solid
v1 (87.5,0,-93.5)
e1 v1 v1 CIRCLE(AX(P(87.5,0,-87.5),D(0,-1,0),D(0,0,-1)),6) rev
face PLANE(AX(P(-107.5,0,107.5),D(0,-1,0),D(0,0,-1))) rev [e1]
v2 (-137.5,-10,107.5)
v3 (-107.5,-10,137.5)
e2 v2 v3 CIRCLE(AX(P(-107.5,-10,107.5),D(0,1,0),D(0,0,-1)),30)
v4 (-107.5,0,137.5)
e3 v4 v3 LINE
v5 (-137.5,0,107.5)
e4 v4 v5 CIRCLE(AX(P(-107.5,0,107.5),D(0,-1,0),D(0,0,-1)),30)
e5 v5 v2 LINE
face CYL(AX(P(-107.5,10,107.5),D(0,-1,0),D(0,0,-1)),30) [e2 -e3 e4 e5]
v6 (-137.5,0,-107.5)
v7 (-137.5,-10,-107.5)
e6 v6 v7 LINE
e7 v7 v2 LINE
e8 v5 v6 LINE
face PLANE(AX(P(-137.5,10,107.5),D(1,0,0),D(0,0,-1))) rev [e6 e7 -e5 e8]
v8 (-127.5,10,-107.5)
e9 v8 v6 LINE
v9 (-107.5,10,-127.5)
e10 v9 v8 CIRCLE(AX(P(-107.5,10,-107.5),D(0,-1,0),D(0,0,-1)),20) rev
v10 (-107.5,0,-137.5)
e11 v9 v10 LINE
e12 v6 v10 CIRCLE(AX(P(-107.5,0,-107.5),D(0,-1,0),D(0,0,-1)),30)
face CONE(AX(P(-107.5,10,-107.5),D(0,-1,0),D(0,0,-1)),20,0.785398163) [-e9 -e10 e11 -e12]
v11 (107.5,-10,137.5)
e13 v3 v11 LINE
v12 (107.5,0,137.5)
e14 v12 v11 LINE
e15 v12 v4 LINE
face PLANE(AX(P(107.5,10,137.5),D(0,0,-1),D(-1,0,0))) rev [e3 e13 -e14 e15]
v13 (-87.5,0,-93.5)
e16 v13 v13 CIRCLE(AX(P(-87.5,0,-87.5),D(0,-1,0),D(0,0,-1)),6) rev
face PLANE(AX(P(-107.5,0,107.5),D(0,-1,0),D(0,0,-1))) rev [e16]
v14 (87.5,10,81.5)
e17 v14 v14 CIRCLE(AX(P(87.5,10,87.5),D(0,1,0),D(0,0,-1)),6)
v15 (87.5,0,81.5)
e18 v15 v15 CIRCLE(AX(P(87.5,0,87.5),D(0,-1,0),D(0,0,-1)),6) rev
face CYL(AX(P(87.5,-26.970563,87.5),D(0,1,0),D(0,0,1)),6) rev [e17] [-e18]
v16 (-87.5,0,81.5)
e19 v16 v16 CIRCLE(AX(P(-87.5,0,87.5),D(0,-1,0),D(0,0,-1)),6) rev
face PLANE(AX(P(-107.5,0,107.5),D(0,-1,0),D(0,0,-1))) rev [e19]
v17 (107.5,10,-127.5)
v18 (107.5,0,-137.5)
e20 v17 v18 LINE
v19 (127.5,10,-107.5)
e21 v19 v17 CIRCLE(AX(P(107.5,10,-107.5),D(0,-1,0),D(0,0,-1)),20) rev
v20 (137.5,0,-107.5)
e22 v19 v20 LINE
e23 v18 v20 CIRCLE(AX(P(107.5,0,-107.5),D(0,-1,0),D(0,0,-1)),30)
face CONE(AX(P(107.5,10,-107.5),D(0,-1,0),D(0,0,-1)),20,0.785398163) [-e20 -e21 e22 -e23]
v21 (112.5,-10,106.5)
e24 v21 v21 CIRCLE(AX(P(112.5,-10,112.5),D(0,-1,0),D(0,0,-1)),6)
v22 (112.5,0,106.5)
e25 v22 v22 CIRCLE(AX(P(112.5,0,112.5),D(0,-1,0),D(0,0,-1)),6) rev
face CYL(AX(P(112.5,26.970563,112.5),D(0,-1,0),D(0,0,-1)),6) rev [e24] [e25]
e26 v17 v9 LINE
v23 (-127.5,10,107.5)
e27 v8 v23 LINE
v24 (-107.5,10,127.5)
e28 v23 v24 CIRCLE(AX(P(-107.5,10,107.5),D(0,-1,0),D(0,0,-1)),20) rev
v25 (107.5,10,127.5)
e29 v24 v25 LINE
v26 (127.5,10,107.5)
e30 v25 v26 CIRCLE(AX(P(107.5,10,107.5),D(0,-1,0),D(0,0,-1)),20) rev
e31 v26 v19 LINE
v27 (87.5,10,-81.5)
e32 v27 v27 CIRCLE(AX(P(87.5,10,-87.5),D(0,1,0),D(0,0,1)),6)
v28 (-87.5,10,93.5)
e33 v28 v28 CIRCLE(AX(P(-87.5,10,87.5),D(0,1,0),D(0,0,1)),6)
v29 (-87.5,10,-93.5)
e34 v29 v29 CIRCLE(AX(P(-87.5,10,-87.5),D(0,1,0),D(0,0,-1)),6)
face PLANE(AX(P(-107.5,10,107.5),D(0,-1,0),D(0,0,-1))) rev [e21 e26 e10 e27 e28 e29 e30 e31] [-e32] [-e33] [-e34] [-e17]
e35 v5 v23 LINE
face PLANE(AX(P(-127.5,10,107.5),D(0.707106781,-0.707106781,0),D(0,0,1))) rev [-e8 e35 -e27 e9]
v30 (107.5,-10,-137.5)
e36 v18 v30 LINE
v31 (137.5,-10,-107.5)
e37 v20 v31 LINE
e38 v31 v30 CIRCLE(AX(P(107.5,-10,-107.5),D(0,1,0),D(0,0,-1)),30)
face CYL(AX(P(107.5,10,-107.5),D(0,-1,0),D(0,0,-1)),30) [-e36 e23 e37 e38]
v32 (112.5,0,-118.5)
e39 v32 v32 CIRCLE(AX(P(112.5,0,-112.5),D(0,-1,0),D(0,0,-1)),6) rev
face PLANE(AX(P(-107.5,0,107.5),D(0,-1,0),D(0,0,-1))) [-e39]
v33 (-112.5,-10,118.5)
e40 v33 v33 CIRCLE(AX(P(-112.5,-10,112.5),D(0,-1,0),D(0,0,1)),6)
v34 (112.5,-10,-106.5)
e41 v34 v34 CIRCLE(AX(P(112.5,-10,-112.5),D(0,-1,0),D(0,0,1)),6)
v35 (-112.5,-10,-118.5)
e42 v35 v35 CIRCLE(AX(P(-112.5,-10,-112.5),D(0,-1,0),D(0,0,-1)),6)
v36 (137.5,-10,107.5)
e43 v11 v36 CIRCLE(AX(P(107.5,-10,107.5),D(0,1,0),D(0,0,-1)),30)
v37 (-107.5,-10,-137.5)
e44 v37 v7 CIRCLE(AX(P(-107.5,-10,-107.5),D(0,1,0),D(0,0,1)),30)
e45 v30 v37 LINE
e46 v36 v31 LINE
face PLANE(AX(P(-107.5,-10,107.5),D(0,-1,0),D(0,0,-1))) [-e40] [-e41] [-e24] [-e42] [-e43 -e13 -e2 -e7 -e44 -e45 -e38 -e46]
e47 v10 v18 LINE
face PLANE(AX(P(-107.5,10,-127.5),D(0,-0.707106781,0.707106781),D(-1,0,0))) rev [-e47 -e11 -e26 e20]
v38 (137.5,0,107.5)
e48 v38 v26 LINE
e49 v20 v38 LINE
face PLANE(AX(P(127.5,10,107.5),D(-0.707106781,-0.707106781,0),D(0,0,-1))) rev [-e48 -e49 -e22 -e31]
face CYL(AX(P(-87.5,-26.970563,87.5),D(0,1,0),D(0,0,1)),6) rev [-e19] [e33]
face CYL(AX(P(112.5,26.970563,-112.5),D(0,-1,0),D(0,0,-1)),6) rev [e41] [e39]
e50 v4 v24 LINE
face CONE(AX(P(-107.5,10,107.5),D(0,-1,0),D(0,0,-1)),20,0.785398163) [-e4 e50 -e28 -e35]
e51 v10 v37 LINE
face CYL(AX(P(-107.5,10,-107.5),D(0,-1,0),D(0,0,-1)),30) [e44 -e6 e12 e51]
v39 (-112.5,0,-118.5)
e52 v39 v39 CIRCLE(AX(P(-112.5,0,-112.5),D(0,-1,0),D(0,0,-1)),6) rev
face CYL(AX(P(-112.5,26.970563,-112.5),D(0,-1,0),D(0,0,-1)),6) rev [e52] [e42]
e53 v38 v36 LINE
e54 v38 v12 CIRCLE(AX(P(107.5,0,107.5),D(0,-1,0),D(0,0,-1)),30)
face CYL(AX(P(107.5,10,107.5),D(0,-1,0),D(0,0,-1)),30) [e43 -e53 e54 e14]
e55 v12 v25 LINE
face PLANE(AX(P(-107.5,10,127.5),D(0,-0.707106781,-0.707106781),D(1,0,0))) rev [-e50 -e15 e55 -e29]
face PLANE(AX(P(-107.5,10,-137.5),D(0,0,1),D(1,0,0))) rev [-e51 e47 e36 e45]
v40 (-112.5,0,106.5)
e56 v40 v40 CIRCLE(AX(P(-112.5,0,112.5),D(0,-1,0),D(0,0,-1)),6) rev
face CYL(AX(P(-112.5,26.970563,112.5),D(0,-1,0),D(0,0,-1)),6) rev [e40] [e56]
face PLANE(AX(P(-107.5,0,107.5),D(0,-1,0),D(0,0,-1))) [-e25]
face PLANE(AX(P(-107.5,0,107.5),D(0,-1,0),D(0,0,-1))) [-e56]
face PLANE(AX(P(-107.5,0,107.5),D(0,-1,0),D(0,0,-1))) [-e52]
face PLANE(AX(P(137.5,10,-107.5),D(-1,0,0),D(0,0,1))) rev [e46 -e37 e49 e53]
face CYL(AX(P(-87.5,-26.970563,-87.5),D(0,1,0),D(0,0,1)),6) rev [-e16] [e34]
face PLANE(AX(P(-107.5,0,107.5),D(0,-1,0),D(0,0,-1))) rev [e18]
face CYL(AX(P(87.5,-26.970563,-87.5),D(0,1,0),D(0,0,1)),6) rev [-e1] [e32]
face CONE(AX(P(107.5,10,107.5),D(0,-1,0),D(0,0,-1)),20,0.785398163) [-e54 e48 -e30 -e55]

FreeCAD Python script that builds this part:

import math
import FreeCAD as App
import Part
import Sketcher

V = App.Vector
Q = App.Units.Quantity


def edges_at(feature, points):
    """Names of the edges that pass closest to the given points."""
    edges = feature.Shape.Edges
    near = lambda p: min(range(len(edges)), key=lambda i: edges[i].distToShape(Part.Vertex(*p))[0])
    return sorted({f"Edge{near(p) + 1}" for p in points})

doc = App.newDocument("Part")
body = doc.addObject("PartDesign::Body", "Body")

# Sketch on XZ plane
sketch1 = body.newObject("Sketcher::SketchObject", "Sketch")
sketch1.AttachmentSupport = (doc.getObject("XZ_Plane"), [""])
sketch1.MapMode = "FlatFace"
sketch1.addGeometry(Part.LineSegment(V(108, -138, 0), V(-108, -138, 0)), False)
sketch1.addGeometry(Part.ArcOfCircle(Part.Circle(V(-108, -108, 0), V(0, 0, 1), 30), math.radians(180), math.radians(270)), False)
sketch1.addGeometry(Part.LineSegment(V(-138, -108, 0), V(-138, 108, 0)), False)
sketch1.addGeometry(Part.ArcOfCircle(Part.Circle(V(-108, 108, 0), V(0, 0, 1), 30), math.radians(90), math.radians(180)), False)
sketch1.addGeometry(Part.LineSegment(V(-108, 138, 0), V(108, 138, 0)), False)
sketch1.addGeometry(Part.ArcOfCircle(Part.Circle(V(108, 108, 0), V(0, 0, 1), 30), math.radians(0), math.radians(90)), False)
sketch1.addGeometry(Part.LineSegment(V(138, 108, 0), V(138, -108, 0)), False)
sketch1.addGeometry(Part.ArcOfCircle(Part.Circle(V(108, -108, 0), V(0, 0, 1), 30), math.radians(-90), math.radians(0)), False)
sketch1.addConstraint(Sketcher.Constraint("Tangent", 0, 2, 1, 2))
sketch1.addConstraint(Sketcher.Constraint("Tangent", 1, 1, 2, 1))
sketch1.addConstraint(Sketcher.Constraint("Tangent", 2, 2, 3, 2))
sketch1.addConstraint(Sketcher.Constraint("Tangent", 3, 1, 4, 1))
sketch1.addConstraint(Sketcher.Constraint("Tangent", 4, 2, 5, 2))
sketch1.addConstraint(Sketcher.Constraint("Tangent", 5, 1, 6, 1))
sketch1.addConstraint(Sketcher.Constraint("Tangent", 6, 2, 7, 2))
sketch1.addConstraint(Sketcher.Constraint("Tangent", 7, 1, 0, 1))
sketch1.addConstraint(Sketcher.Constraint("Horizontal", 0))
sketch1.addConstraint(Sketcher.Constraint("Vertical", 2))
sketch1.addConstraint(Sketcher.Constraint("Horizontal", 4))
sketch1.addConstraint(Sketcher.Constraint("Vertical", 6))
sketch1.addConstraint(Sketcher.Constraint("Equal", 1, 3))
sketch1.addConstraint(Sketcher.Constraint("Equal", 3, 5))
sketch1.addConstraint(Sketcher.Constraint("Equal", 5, 7))
sketch1.addConstraint(Sketcher.Constraint("Symmetric", 1, 3, 5, 3, -1, 1))
sketch1.addConstraint(Sketcher.Constraint("Equal", 4, 2))
sketch1.addConstraint(Sketcher.Constraint("Radius", 1, Q("30 mm")))
sketch1.addConstraint(Sketcher.Constraint("DistanceX", 0, 2, 0, 1, Q("215 mm")))
pad1 = body.newObject("PartDesign::Pad", "Pad")
pad1.Profile = sketch1
pad1.Length = 20
pad1.Midplane = True
doc.recompute()

chamfer = body.newObject("PartDesign::Chamfer", "Chamfer")
chamfer.Base = (pad1, edges_at(pad1, [
    (128.713, 10, 128.713),
    (137.5, 10, 0),
    (128.713, 10, -128.713),
    (0, 10, -137.5),
    (-128.713, 10, -128.713),
    (-137.5, 10, 0),
    (-128.713, 10, 128.713),
    (0, 10, 137.5),
]))
chamfer.Size = 10

# Sketch on XZ plane
sketch2 = body.newObject("Sketcher::SketchObject", "Sketch001")
sketch2.AttachmentSupport = (doc.getObject("XZ_Plane"), [""])
sketch2.MapMode = "FlatFace"
sketch2.AttachmentOffset = App.Placement(V(0, 0, -10), App.Rotation())
sketch2.addGeometry(Part.Circle(V(88, -88, 0), V(0, 0, 1), 6), False)
sketch2.addGeometry(Part.Circle(V(-88, -88, 0), V(0, 0, 1), 6), False)
sketch2.addGeometry(Part.Circle(V(88, 88, 0), V(0, 0, 1), 6), False)
sketch2.addGeometry(Part.Circle(V(-88, 88, 0), V(0, 0, 1), 6), False)
sketch2.addConstraint(Sketcher.Constraint("Equal", 0, 1))
sketch2.addConstraint(Sketcher.Constraint("Equal", 1, 2))
sketch2.addConstraint(Sketcher.Constraint("Equal", 2, 3))
sketch2.addConstraint(Sketcher.Constraint("Symmetric", 1, 3, 2, 3, -1, 1))
sketch2.addConstraint(Sketcher.Constraint("Symmetric", 0, 3, 3, 3, -1, 1))
sketch2.addConstraint(Sketcher.Constraint("Symmetric", 0, 3, 1, 3, -2))
sketch2.addConstraint(Sketcher.Constraint("Diameter", 0, Q("12 mm")))
sketch2.addConstraint(Sketcher.Constraint("DistanceX", 1, 3, 0, 3, Q("175 mm")))
sketch2.addConstraint(Sketcher.Constraint("DistanceY", 0, 3, 2, 3, Q("175 mm")))
pocket1 = body.newObject("PartDesign::Pocket", "Pocket")
pocket1.Profile = sketch2
pocket1.Length = 10
pocket1.Reversed = True

# Sketch on XZ plane
sketch3 = body.newObject("Sketcher::SketchObject", "Sketch002")
sketch3.AttachmentSupport = (doc.getObject("XZ_Plane"), [""])
sketch3.MapMode = "FlatFace"
sketch3.AttachmentOffset = App.Placement(V(0, 0, 10), App.Rotation())
sketch3.addGeometry(Part.Circle(V(112, 112, 0), V(0, 0, 1), 6), False)
sketch3.addGeometry(Part.Circle(V(-112, 112, 0), V(0, 0, 1), 6), False)
sketch3.addGeometry(Part.Circle(V(112, -112, 0), V(0, 0, 1), 6), False)
sketch3.addGeometry(Part.Circle(V(-112, -112, 0), V(0, 0, 1), 6), False)
sketch3.addConstraint(Sketcher.Constraint("Equal", 0, 1))
sketch3.addConstraint(Sketcher.Constraint("Equal", 1, 2))
sketch3.addConstraint(Sketcher.Constraint("Equal", 2, 3))
sketch3.addConstraint(Sketcher.Constraint("Symmetric", 1, 3, 2, 3, -1, 1))
sketch3.addConstraint(Sketcher.Constraint("Symmetric", 0, 3, 3, 3, -1, 1))
sketch3.addConstraint(Sketcher.Constraint("Symmetric", 0, 3, 1, 3, -2))
sketch3.addConstraint(Sketcher.Constraint("Diameter", 0, Q("12 mm")))
sketch3.addConstraint(Sketcher.Constraint("DistanceX", 1, 3, 0, 3, Q("225 mm")))
sketch3.addConstraint(Sketcher.Constraint("DistanceY", 2, 3, 0, 3, Q("225 mm")))
pocket2 = body.newObject("PartDesign::Pocket", "Pocket001")
pocket2.Profile = sketch3
pocket2.Length = 10

doc.recompute()
